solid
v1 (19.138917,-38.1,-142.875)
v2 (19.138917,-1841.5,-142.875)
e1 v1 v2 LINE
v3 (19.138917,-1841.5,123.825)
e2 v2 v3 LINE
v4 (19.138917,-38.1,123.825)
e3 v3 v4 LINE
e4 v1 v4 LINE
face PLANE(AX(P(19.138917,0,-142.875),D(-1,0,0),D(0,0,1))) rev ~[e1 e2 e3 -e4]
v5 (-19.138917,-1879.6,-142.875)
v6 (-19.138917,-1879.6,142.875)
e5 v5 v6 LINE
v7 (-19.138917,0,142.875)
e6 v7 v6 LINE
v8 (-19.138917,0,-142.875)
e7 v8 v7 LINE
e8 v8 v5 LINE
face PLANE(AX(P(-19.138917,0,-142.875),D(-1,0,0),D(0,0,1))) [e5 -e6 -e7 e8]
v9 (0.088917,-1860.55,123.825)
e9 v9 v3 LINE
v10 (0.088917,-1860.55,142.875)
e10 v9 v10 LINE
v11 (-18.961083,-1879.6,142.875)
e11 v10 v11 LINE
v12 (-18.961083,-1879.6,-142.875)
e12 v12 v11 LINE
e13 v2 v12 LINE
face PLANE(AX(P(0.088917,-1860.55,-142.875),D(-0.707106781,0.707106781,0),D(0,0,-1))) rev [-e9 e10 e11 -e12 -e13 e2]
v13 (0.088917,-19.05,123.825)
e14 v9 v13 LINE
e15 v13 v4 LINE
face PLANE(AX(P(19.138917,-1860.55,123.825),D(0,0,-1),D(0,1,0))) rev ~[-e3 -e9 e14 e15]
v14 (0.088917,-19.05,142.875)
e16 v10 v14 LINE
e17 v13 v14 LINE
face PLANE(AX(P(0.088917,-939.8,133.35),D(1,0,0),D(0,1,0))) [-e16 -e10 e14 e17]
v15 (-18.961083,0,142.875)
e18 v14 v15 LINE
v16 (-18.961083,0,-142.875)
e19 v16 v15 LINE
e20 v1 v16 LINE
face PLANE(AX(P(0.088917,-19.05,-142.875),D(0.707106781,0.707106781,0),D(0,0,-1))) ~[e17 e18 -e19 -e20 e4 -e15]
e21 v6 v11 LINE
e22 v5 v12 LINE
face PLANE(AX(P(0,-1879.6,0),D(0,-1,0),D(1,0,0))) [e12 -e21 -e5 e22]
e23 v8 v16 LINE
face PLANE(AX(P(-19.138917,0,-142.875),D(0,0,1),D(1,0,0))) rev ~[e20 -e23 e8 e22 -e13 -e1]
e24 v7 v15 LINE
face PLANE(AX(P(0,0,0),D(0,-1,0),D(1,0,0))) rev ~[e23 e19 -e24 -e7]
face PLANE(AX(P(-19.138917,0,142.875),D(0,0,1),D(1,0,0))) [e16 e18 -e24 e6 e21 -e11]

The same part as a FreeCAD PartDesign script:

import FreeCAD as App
import Part
import Sketcher

V = App.Vector
Q = App.Units.Quantity


def edges_at(feature, points):
    """Names of the edges that pass closest to the given points."""
    edges = feature.Shape.Edges
    near = lambda p: min(range(len(edges)), key=lambda i: edges[i].distToShape(Part.Vertex(*p))[0])
    return sorted({f"Edge{near(p) + 1}" for p in points})

doc = App.newDocument("Part")
params = doc.addObject("Spreadsheet::Sheet", "Params")
for row, (alias, value) in enumerate([
    ("sketch1_height", "11.25 in"),
    ("pad1_length", "74 in"),
    ("chamfer_size", "1.5 in"),
    ("sketch2_width", "72.5 in"),
    ("sketch2_height", "0.75 in"),
    ("pocket1_length", "0.75 in"),
], start=1):
    params.set(f"A{row}", alias)
    params.set(f"B{row}", "=" + value)
    params.setAlias(f"B{row}", alias)

body = doc.addObject("PartDesign::Body", "Body")

# Sketch on XZ plane
sketch1 = doc.addObject("Sketcher::SketchObject", "Sketch")
body.addObject(sketch1)
sketch1.AttachmentSupport = (doc.XZ_Plane, [""])
sketch1.MapMode = "FlatFace"
sketch1.addGeometry([
    Part.LineSegment(V(-19, 143, 0), V(-19, -143, 0)),
    Part.LineSegment(V(-19, -143, 0), V(19, -143, 0)),
    Part.LineSegment(V(19, -143, 0), V(19, 143, 0)),
    Part.LineSegment(V(19, 143, 0), V(-19, 143, 0)),
], False)
sketch1.addConstraint([
    Sketcher.Constraint("Coincident", 0, 2, 1, 1),
    Sketcher.Constraint("Coincident", 1, 2, 2, 1),
    Sketcher.Constraint("Coincident", 2, 2, 3, 1),
    Sketcher.Constraint("Coincident", 3, 2, 0, 1),
    Sketcher.Constraint("Vertical", 0),
    Sketcher.Constraint("Horizontal", 1),
    Sketcher.Constraint("Vertical", 2),
    Sketcher.Constraint("Horizontal", 3),
    Sketcher.Constraint("Symmetric", 0, 2, 2, 2, -1, 1),
    Sketcher.Constraint("DistanceY", 0, 2, 0, 1, Q("11.25 in")),
    Sketcher.Constraint("DistanceX", 1, 1, 1, 2, Q("38.277834 mm")),
])
sketch1.setExpression("Constraints[9]", "Params.sketch1_height")
pad1 = doc.addObject("PartDesign::Pad", "Pad")
body.addObject(pad1)
pad1.Profile = sketch1
pad1.setExpression("Length", "Params.pad1_length")
doc.recompute()

chamfer = doc.addObject("PartDesign::Chamfer", "Chamfer")
body.addObject(chamfer)
chamfer.Base = (pad1, edges_at(pad1, [(19.139, -1879.6, 0), (19.139, 0, 0)]))
chamfer.setExpression("Size", "Params.chamfer_size")

# Sketch on YZ plane
sketch2 = doc.addObject("Sketcher::SketchObject", "Sketch001")
body.addObject(sketch2)
sketch2.AttachmentSupport = (doc.YZ_Plane, [""])
sketch2.MapMode = "FlatFace"
sketch2.AttachmentOffset = App.Placement(V(0, 0, 19.138917), App.Rotation())
sketch2.addGeometry([
    Part.LineSegment(V(-1861, 143, 0), V(-1861, 124, 0)),
    Part.LineSegment(V(-1861, 124, 0), V(-19, 124, 0)),
    Part.LineSegment(V(-19, 124, 0), V(-19, 143, 0)),
    Part.LineSegment(V(-19, 143, 0), V(-1861, 143, 0)),
], False)
sketch2.addConstraint([
    Sketcher.Constraint("Coincident", 0, 2, 1, 1),
    Sketcher.Constraint("Coincident", 1, 2, 2, 1),
    Sketcher.Constraint("Coincident", 2, 2, 3, 1),
    Sketcher.Constraint("Coincident", 3, 2, 0, 1),
    Sketcher.Constraint("Vertical", 0),
    Sketcher.Constraint("Horizontal", 1),
    Sketcher.Constraint("Vertical", 2),
    Sketcher.Constraint("Horizontal", 3),
    Sketcher.Constraint("DistanceX", 1, 1, 1, 2, Q("72.5 in")),
    Sketcher.Constraint("DistanceY", 0, 2, 0, 1, Q("0.75 in")),
    Sketcher.Constraint("DistanceX", 0, 2, -1, 1, Q("73.25 in")),
    Sketcher.Constraint("DistanceY", -1, 1, 0, 2, Q("4.875 in")),
])
sketch2.setExpression("Constraints[8]", "Params.sketch2_width")
sketch2.setExpression("Constraints[9]", "Params.sketch2_height")
pocket1 = doc.addObject("PartDesign::Pocket", "Pocket")
body.addObject(pocket1)
pocket1.Profile = sketch2
pocket1.setExpression("Length", "Params.pocket1_length")

doc.recompute()
